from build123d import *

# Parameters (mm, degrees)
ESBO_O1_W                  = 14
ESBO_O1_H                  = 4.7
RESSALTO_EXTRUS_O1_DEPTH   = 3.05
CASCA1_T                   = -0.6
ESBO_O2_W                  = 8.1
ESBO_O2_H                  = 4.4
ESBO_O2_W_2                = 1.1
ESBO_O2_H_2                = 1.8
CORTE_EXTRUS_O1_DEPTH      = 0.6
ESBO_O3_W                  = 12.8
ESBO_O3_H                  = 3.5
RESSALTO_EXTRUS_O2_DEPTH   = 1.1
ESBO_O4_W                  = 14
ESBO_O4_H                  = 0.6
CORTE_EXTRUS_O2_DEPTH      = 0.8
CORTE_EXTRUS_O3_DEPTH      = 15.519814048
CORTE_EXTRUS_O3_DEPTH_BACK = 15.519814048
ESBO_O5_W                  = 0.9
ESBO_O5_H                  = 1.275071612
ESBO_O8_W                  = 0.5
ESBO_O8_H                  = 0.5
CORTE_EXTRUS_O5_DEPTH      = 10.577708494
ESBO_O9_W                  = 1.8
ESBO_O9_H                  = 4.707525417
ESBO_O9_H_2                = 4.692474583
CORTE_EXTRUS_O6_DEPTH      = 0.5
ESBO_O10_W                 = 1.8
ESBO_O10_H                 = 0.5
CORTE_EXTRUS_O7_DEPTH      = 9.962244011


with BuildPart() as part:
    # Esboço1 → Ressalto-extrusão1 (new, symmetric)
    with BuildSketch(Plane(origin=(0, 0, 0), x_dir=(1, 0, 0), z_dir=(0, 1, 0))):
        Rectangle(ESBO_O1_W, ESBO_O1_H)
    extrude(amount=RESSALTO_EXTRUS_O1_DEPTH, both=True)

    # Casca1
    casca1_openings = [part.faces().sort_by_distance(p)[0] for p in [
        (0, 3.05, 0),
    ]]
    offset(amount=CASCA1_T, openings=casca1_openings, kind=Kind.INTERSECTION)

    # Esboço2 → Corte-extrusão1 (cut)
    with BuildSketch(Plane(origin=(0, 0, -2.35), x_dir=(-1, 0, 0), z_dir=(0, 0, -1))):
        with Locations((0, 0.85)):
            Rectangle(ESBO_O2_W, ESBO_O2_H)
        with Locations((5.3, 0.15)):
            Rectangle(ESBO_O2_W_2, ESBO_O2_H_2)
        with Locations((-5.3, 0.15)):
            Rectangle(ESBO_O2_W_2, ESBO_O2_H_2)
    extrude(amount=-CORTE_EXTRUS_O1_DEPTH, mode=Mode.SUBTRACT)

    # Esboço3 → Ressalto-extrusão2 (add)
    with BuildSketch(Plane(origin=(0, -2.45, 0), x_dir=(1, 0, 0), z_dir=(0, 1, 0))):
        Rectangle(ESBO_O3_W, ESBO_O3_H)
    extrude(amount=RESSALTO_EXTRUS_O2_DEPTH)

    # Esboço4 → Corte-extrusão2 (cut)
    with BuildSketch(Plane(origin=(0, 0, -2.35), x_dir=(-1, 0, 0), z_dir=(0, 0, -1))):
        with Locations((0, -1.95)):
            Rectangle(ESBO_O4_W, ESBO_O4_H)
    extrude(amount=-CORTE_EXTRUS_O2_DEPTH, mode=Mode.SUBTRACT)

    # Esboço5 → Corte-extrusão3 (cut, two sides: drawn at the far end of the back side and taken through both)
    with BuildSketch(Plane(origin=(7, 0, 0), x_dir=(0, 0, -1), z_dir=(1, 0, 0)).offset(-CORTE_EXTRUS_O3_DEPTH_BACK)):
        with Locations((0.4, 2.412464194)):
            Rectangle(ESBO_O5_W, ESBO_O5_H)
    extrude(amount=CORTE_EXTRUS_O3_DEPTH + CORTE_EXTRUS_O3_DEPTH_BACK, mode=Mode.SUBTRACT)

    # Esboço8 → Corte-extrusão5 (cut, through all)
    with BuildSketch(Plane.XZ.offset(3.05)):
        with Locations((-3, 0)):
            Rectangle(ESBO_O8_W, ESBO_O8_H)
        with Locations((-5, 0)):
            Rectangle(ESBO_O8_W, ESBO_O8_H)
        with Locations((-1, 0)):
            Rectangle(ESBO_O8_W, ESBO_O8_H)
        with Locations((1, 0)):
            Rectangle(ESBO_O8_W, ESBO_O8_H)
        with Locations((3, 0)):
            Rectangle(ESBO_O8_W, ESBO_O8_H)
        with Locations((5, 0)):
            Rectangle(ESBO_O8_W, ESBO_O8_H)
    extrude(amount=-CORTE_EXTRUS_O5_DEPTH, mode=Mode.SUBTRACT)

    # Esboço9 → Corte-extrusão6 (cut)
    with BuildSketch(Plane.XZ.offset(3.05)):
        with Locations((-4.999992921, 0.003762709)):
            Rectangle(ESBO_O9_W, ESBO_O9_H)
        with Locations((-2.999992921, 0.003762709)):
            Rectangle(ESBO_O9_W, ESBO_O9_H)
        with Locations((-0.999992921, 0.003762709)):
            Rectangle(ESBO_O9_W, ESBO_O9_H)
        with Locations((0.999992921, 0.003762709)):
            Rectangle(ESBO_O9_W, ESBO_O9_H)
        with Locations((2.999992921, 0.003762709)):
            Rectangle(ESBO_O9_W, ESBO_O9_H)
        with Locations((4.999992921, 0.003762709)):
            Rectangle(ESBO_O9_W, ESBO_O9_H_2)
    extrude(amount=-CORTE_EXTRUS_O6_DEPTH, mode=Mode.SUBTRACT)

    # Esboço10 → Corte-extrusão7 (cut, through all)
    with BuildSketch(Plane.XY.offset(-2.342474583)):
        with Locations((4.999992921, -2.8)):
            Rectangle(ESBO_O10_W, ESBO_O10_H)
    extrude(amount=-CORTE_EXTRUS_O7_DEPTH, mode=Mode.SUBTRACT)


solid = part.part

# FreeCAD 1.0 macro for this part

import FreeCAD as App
import Part
import Sketcher


def faces_at(feature, points):
    """Names of the faces that lie closest to the given points."""
    faces = feature.Shape.Faces
    near = lambda p: min(range(len(faces)), key=lambda i: faces[i].distToShape(Part.Vertex(*p))[0])
    return sorted({f"Face{near(p) + 1}" for p in points})

doc = App.newDocument("Part")
body = doc.addObject("PartDesign::Body", "Body")

# Sketch on XZ plane
sketch1 = body.newObject("Sketcher::SketchObject", "Sketch")
sketch1.AttachmentSupport = (doc.getObject("XZ_Plane"), [""])
sketch1.MapMode = "FlatFace"
sketch1.addGeometry(Part.LineSegment(App.Vector(-7, -2.4, 0), App.Vector(-7, 2.4, 0)), False)
sketch1.addGeometry(Part.LineSegment(App.Vector(-7, 2.4, 0), App.Vector(7, 2.4, 0)), False)
sketch1.addGeometry(Part.LineSegment(App.Vector(7, 2.4, 0), App.Vector(7, -2.4, 0)), False)
sketch1.addGeometry(Part.LineSegment(App.Vector(7, -2.4, 0), App.Vector(-7, -2.4, 0)), False)
sketch1.addConstraint(Sketcher.Constraint("Coincident", 0, 2, 1, 1))
sketch1.addConstraint(Sketcher.Constraint("Coincident", 1, 2, 2, 1))
sketch1.addConstraint(Sketcher.Constraint("Coincident", 2, 2, 3, 1))
sketch1.addConstraint(Sketcher.Constraint("Coincident", 3, 2, 0, 1))
sketch1.addConstraint(Sketcher.Constraint("Vertical", 0))
sketch1.addConstraint(Sketcher.Constraint("Horizontal", 1))
sketch1.addConstraint(Sketcher.Constraint("Vertical", 2))
sketch1.addConstraint(Sketcher.Constraint("Horizontal", 3))
sketch1.addConstraint(Sketcher.Constraint("Symmetric", 0, 2, 2, 2, -1, 1))
sketch1.addConstraint(Sketcher.Constraint("DistanceX", 1, 1, 1, 2, 14.0))
sketch1.addConstraint(Sketcher.Constraint("DistanceY", 0, 1, 0, 2, 4.7))
pad1 = body.newObject("PartDesign::Pad", "Pad")
pad1.Profile = sketch1
pad1.Length = 6.1
pad1.Midplane = True
doc.recompute()

thickness = body.newObject("PartDesign::Thickness", "Thickness")
thickness.Base = (pad1, faces_at(pad1, [(0, 3.05, 0)]))
thickness.Value = 0.6
thickness.Reversed = True
thickness.Join = "Intersection"

# Sketch on XY plane
sketch2 = body.newObject("Sketcher::SketchObject", "Sketch001")
sketch2.AttachmentSupport = (doc.getObject("XY_Plane"), [""])
sketch2.MapMode = "FlatFace"
sketch2.AttachmentOffset = App.Placement(App.Vector(0, 0, -2.35), App.Rotation())
sketch2.addGeometry(Part.LineSegment(App.Vector(4, 3, 0), App.Vector(4, -1.4, 0)), False)
sketch2.addGeometry(Part.LineSegment(App.Vector(4, -1.4, 0), App.Vector(-4, -1.4, 0)), False)
sketch2.addGeometry(Part.LineSegment(App.Vector(-4, -1.4, 0), App.Vector(-4, 3, 0)), False)
sketch2.addGeometry(Part.LineSegment(App.Vector(-4, 3, 0), App.Vector(4, 3, 0)), False)
sketch2.addGeometry(Part.LineSegment(App.Vector(-4.8, 1.1, 0), App.Vector(-4.8, -0.8, 0)), False)
sketch2.addGeometry(Part.LineSegment(App.Vector(-4.8, -0.8, 0), App.Vector(-5.8, -0.8, 0)), False)
sketch2.addGeometry(Part.LineSegment(App.Vector(-5.8, -0.8, 0), App.Vector(-5.8, 1.1, 0)), False)
sketch2.addGeometry(Part.LineSegment(App.Vector(-5.8, 1.1, 0), App.Vector(-4.8, 1.1, 0)), False)
sketch2.addGeometry(Part.LineSegment(App.Vector(5.8, 1.1, 0), App.Vector(5.8, -0.8, 0)), False)
sketch2.addGeometry(Part.LineSegment(App.Vector(5.8, -0.8, 0), App.Vector(4.8, -0.8, 0)), False)
sketch2.addGeometry(Part.LineSegment(App.Vector(4.8, -0.8, 0), App.Vector(4.8, 1.1, 0)), False)
sketch2.addGeometry(Part.LineSegment(App.Vector(4.8, 1.1, 0), App.Vector(5.8, 1.1, 0)), False)
sketch2.addConstraint(Sketcher.Constraint("Coincident", 0, 2, 1, 1))
sketch2.addConstraint(Sketcher.Constraint("Coincident", 1, 2, 2, 1))
sketch2.addConstraint(Sketcher.Constraint("Coincident", 2, 2, 3, 1))
sketch2.addConstraint(Sketcher.Constraint("Coincident", 3, 2, 0, 1))
sketch2.addConstraint(Sketcher.Constraint("Coincident", 4, 2, 5, 1))
sketch2.addConstraint(Sketcher.Constraint("Coincident", 5, 2, 6, 1))
sketch2.addConstraint(Sketcher.Constraint("Coincident", 6, 2, 7, 1))
sketch2.addConstraint(Sketcher.Constraint("Coincident", 7, 2, 4, 1))
sketch2.addConstraint(Sketcher.Constraint("Coincident", 8, 2, 9, 1))
sketch2.addConstraint(Sketcher.Constraint("Coincident", 9, 2, 10, 1))
sketch2.addConstraint(Sketcher.Constraint("Coincident", 10, 2, 11, 1))
sketch2.addConstraint(Sketcher.Constraint("Coincident", 11, 2, 8, 1))
sketch2.addConstraint(Sketcher.Constraint("Vertical", 0))
sketch2.addConstraint(Sketcher.Constraint("Horizontal", 1))
sketch2.addConstraint(Sketcher.Constraint("Vertical", 2))
sketch2.addConstraint(Sketcher.Constraint("Horizontal", 3))
sketch2.addConstraint(Sketcher.Constraint("Vertical", 4))
sketch2.addConstraint(Sketcher.Constraint("Horizontal", 5))
sketch2.addConstraint(Sketcher.Constraint("Vertical", 6))
sketch2.addConstraint(Sketcher.Constraint("Horizontal", 7))
sketch2.addConstraint(Sketcher.Constraint("Vertical", 8))
sketch2.addConstraint(Sketcher.Constraint("Horizontal", 9))
sketch2.addConstraint(Sketcher.Constraint("Vertical", 10))
sketch2.addConstraint(Sketcher.Constraint("Horizontal", 11))
sketch2.addConstraint(Sketcher.Constraint("Symmetric", 5, 2, 8, 2, -2))
sketch2.addConstraint(Sketcher.Constraint("Symmetric", 7, 2, 10, 2, -2))
sketch2.addConstraint(Sketcher.Constraint("DistanceX", 1, 2, 1, 1, 8.1))
sketch2.addConstraint(Sketcher.Constraint("DistanceX", 5, 2, 5, 1, 1.1))
sketch2.addConstraint(Sketcher.Constraint("DistanceY", 0, 2, 0, 1, 4.4))
sketch2.addConstraint(Sketcher.Constraint("DistanceY", 4, 2, 4, 1, 1.8))
sketch2.addConstraint(Sketcher.Constraint("DistanceY", 6, 2, 2, 2, 2.0))
sketch2.addConstraint(Sketcher.Constraint("DistanceX", 4, 2, 1, 2, 0.7))
sketch2.addConstraint(Sketcher.Constraint("DistanceX", 0, 2, 8, 2, 1.8))
sketch2.addConstraint(Sketcher.Constraint("DistanceY", 0, 2, -1, 1, 1.35))
pocket1 = body.newObject("PartDesign::Pocket", "Pocket")
pocket1.Profile = sketch2
pocket1.Length = 0.6
pocket1.Reversed = True

# Sketch on XZ plane
sketch3 = body.newObject("Sketcher::SketchObject", "Sketch002")
sketch3.AttachmentSupport = (doc.getObject("XZ_Plane"), [""])
sketch3.MapMode = "FlatFace"
sketch3.AttachmentOffset = App.Placement(App.Vector(0, 0, 2.45), App.Rotation())
sketch3.addGeometry(Part.LineSegment(App.Vector(-6.4, -1.8, 0), App.Vector(-6.4, 1.8, 0)), False)
sketch3.addGeometry(Part.LineSegment(App.Vector(-6.4, 1.8, 0), App.Vector(6.4, 1.8, 0)), False)
sketch3.addGeometry(Part.LineSegment(App.Vector(6.4, 1.8, 0), App.Vector(6.4, -1.8, 0)), False)
sketch3.addGeometry(Part.LineSegment(App.Vector(6.4, -1.8, 0), App.Vector(-6.4, -1.8, 0)), False)
sketch3.addConstraint(Sketcher.Constraint("Coincident", 0, 2, 1, 1))
sketch3.addConstraint(Sketcher.Constraint("Coincident", 1, 2, 2, 1))
sketch3.addConstraint(Sketcher.Constraint("Coincident", 2, 2, 3, 1))
sketch3.addConstraint(Sketcher.Constraint("Coincident", 3, 2, 0, 1))
sketch3.addConstraint(Sketcher.Constraint("Vertical", 0))
sketch3.addConstraint(Sketcher.Constraint("Horizontal", 1))
sketch3.addConstraint(Sketcher.Constraint("Vertical", 2))
sketch3.addConstraint(Sketcher.Constraint("Horizontal", 3))
sketch3.addConstraint(Sketcher.Constraint("Symmetric", 0, 2, 2, 2, -1, 1))
sketch3.addConstraint(Sketcher.Constraint("DistanceX", 1, 1, 1, 2, 12.8))
sketch3.addConstraint(Sketcher.Constraint("DistanceY", 0, 1, 0, 2, 3.5))
pad2 = body.newObject("PartDesign::Pad", "Pad001")
pad2.Profile = sketch3
pad2.Length = 1.1
pad2.Reversed = True

# Sketch on XY plane
sketch4 = body.newObject("Sketcher::SketchObject", "Sketch003")
sketch4.AttachmentSupport = (doc.getObject("XY_Plane"), [""])
sketch4.MapMode = "FlatFace"
sketch4.AttachmentOffset = App.Placement(App.Vector(0, 0, -2.35), App.Rotation())
sketch4.addGeometry(Part.LineSegment(App.Vector(7, -1.6, 0), App.Vector(7, -2.2, 0)), False)
sketch4.addGeometry(Part.LineSegment(App.Vector(7, -2.2, 0), App.Vector(-7, -2.2, 0)), False)
sketch4.addGeometry(Part.LineSegment(App.Vector(-7, -2.2, 0), App.Vector(-7, -1.6, 0)), False)
sketch4.addGeometry(Part.LineSegment(App.Vector(-7, -1.6, 0), App.Vector(7, -1.6, 0)), False)
sketch4.addConstraint(Sketcher.Constraint("Coincident", 0, 2, 1, 1))
sketch4.addConstraint(Sketcher.Constraint("Coincident", 1, 2, 2, 1))
sketch4.addConstraint(Sketcher.Constraint("Coincident", 2, 2, 3, 1))
sketch4.addConstraint(Sketcher.Constraint("Coincident", 3, 2, 0, 1))
sketch4.addConstraint(Sketcher.Constraint("Vertical", 0))
sketch4.addConstraint(Sketcher.Constraint("Horizontal", 1))
sketch4.addConstraint(Sketcher.Constraint("Vertical", 2))
sketch4.addConstraint(Sketcher.Constraint("Horizontal", 3))
sketch4.addConstraint(Sketcher.Constraint("DistanceX", 1, 2, 1, 1, 14.0))
sketch4.addConstraint(Sketcher.Constraint("DistanceY", 0, 2, 0, 1, 0.6))
sketch4.addConstraint(Sketcher.Constraint("DistanceX", -1, 1, 0, 2, 7.0))
sketch4.addConstraint(Sketcher.Constraint("DistanceY", 0, 2, -1, 1, 2.25))
pocket2 = body.newObject("PartDesign::Pocket", "Pocket001")
pocket2.Profile = sketch4
pocket2.Length = 0.8
pocket2.Reversed = True

# Sketch on YZ plane
sketch5 = body.newObject("Sketcher::SketchObject", "Sketch004")
sketch5.AttachmentSupport = (doc.getObject("YZ_Plane"), [""])
sketch5.MapMode = "FlatFace"
sketch5.AttachmentOffset = App.Placement(App.Vector(0, 0, 7), App.Rotation())
sketch5.addGeometry(Part.LineSegment(App.Vector(3, 0.1, 0), App.Vector(1.8, 0.1, 0)), False)
sketch5.addGeometry(Part.LineSegment(App.Vector(1.8, 0.1, 0), App.Vector(1.8, -0.8, 0)), False)
sketch5.addGeometry(Part.LineSegment(App.Vector(1.8, -0.8, 0), App.Vector(3, -0.8, 0)), False)
sketch5.addGeometry(Part.LineSegment(App.Vector(3, -0.8, 0), App.Vector(3, 0.1, 0)), False)
sketch5.addConstraint(Sketcher.Constraint("Coincident", 0, 2, 1, 1))
sketch5.addConstraint(Sketcher.Constraint("Coincident", 1, 2, 2, 1))
sketch5.addConstraint(Sketcher.Constraint("Coincident", 2, 2, 3, 1))
sketch5.addConstraint(Sketcher.Constraint("Coincident", 3, 2, 0, 1))
sketch5.addConstraint(Sketcher.Constraint("Horizontal", 0))
sketch5.addConstraint(Sketcher.Constraint("Vertical", 1))
sketch5.addConstraint(Sketcher.Constraint("Horizontal", 2))
sketch5.addConstraint(Sketcher.Constraint("Vertical", 3))
sketch5.addConstraint(Sketcher.Constraint("DistanceY", 1, 2, 1, 1, 0.9))
sketch5.addConstraint(Sketcher.Constraint("DistanceY", -1, 1, 0, 2, 0.05))
sketch5.addConstraint(Sketcher.Constraint("DistanceX", -1, 1, 2, 2, 3.05))
sketch5.addConstraint(Sketcher.Constraint("DistanceX", 0, 2, 0, 1, 1.275072))
pocket3 = body.newObject("PartDesign::Pocket", "Pocket002")
pocket3.Profile = sketch5
pocket3.Type = "ThroughAll"
pocket3.Midplane = True

# Sketch on XZ plane
sketch6 = body.newObject("Sketcher::SketchObject", "Sketch005")
sketch6.AttachmentSupport = (doc.getObject("XZ_Plane"), [""])
sketch6.MapMode = "FlatFace"
sketch6.AttachmentOffset = App.Placement(App.Vector(0, 0, 3.05), App.Rotation())
sketch6.addGeometry(Part.LineSegment(App.Vector(-3.2, 0.2, 0), App.Vector(-3.2, -0.2, 0)), False)
sketch6.addGeometry(Part.LineSegment(App.Vector(-3.2, -0.2, 0), App.Vector(-2.8, -0.2, 0)), False)
sketch6.addGeometry(Part.LineSegment(App.Vector(-2.8, -0.2, 0), App.Vector(-2.8, 0.2, 0)), False)
sketch6.addGeometry(Part.LineSegment(App.Vector(-2.8, 0.2, 0), App.Vector(-3.2, 0.2, 0)), False)
sketch6.addGeometry(Part.LineSegment(App.Vector(-5.2, 0.2, 0), App.Vector(-5.2, -0.2, 0)), False)
sketch6.addGeometry(Part.LineSegment(App.Vector(-5.2, -0.2, 0), App.Vector(-4.8, -0.2, 0)), False)
sketch6.addGeometry(Part.LineSegment(App.Vector(-4.8, -0.2, 0), App.Vector(-4.8, 0.2, 0)), False)
sketch6.addGeometry(Part.LineSegment(App.Vector(-4.8, 0.2, 0), App.Vector(-5.2, 0.2, 0)), False)
sketch6.addGeometry(Part.LineSegment(App.Vector(-1.2, 0.2, 0), App.Vector(-1.2, -0.2, 0)), False)
sketch6.addGeometry(Part.LineSegment(App.Vector(-1.2, -0.2, 0), App.Vector(-0.8, -0.2, 0)), False)
sketch6.addGeometry(Part.LineSegment(App.Vector(-0.8, -0.2, 0), App.Vector(-0.8, 0.2, 0)), False)
sketch6.addGeometry(Part.LineSegment(App.Vector(-0.8, 0.2, 0), App.Vector(-1.2, 0.2, 0)), False)
sketch6.addGeometry(Part.LineSegment(App.Vector(0.8, 0.2, 0), App.Vector(0.8, -0.2, 0)), False)
sketch6.addGeometry(Part.LineSegment(App.Vector(0.8, -0.2, 0), App.Vector(1.2, -0.2, 0)), False)
sketch6.addGeometry(Part.LineSegment(App.Vector(1.2, -0.2, 0), App.Vector(1.2, 0.2, 0)), False)
sketch6.addGeometry(Part.LineSegment(App.Vector(1.2, 0.2, 0), App.Vector(0.8, 0.2, 0)), False)
sketch6.addGeometry(Part.LineSegment(App.Vector(2.8, 0.2, 0), App.Vector(2.8, -0.2, 0)), False)
sketch6.addGeometry(Part.LineSegment(App.Vector(2.8, -0.2, 0), App.Vector(3.2, -0.2, 0)), False)
sketch6.addGeometry(Part.LineSegment(App.Vector(3.2, -0.2, 0), App.Vector(3.2, 0.2, 0)), False)
sketch6.addGeometry(Part.LineSegment(App.Vector(3.2, 0.2, 0), App.Vector(2.8, 0.2, 0)), False)
sketch6.addGeometry(Part.LineSegment(App.Vector(4.8, 0.2, 0), App.Vector(4.8, -0.2, 0)), False)
sketch6.addGeometry(Part.LineSegment(App.Vector(4.8, -0.2, 0), App.Vector(5.2, -0.2, 0)), False)
sketch6.addGeometry(Part.LineSegment(App.Vector(5.2, -0.2, 0), App.Vector(5.2, 0.2, 0)), False)
sketch6.addGeometry(Part.LineSegment(App.Vector(5.2, 0.2, 0), App.Vector(4.8, 0.2, 0)), False)
sketch6.addConstraint(Sketcher.Constraint("Coincident", 0, 2, 1, 1))
sketch6.addConstraint(Sketcher.Constraint("Coincident", 1, 2, 2, 1))
sketch6.addConstraint(Sketcher.Constraint("Coincident", 2, 2, 3, 1))
sketch6.addConstraint(Sketcher.Constraint("Coincident", 3, 2, 0, 1))
sketch6.addConstraint(Sketcher.Constraint("Coincident", 4, 2, 5, 1))
sketch6.addConstraint(Sketcher.Constraint("Coincident", 5, 2, 6, 1))
sketch6.addConstraint(Sketcher.Constraint("Coincident", 6, 2, 7, 1))
sketch6.addConstraint(Sketcher.Constraint("Coincident", 7, 2, 4, 1))
sketch6.addConstraint(Sketcher.Constraint("Coincident", 8, 2, 9, 1))
sketch6.addConstraint(Sketcher.Constraint("Coincident", 9, 2, 10, 1))
sketch6.addConstraint(Sketcher.Constraint("Coincident", 10, 2, 11, 1))
sketch6.addConstraint(Sketcher.Constraint("Coincident", 11, 2, 8, 1))
sketch6.addConstraint(Sketcher.Constraint("Coincident", 12, 2, 13, 1))
sketch6.addConstraint(Sketcher.Constraint("Coincident", 13, 2, 14, 1))
sketch6.addConstraint(Sketcher.Constraint("Coincident", 14, 2, 15, 1))
sketch6.addConstraint(Sketcher.Constraint("Coincident", 15, 2, 12, 1))
sketch6.addConstraint(Sketcher.Constraint("Coincident", 16, 2, 17, 1))
sketch6.addConstraint(Sketcher.Constraint("Coincident", 17, 2, 18, 1))
sketch6.addConstraint(Sketcher.Constraint("Coincident", 18, 2, 19, 1))
sketch6.addConstraint(Sketcher.Constraint("Coincident", 19, 2, 16, 1))
sketch6.addConstraint(Sketcher.Constraint("Coincident", 20, 2, 21, 1))
sketch6.addConstraint(Sketcher.Constraint("Coincident", 21, 2, 22, 1))
sketch6.addConstraint(Sketcher.Constraint("Coincident", 22, 2, 23, 1))
sketch6.addConstraint(Sketcher.Constraint("Coincident", 23, 2, 20, 1))
sketch6.addConstraint(Sketcher.Constraint("Vertical", 0))
sketch6.addConstraint(Sketcher.Constraint("Horizontal", 1))
sketch6.addConstraint(Sketcher.Constraint("Vertical", 2))
sketch6.addConstraint(Sketcher.Constraint("Horizontal", 3))
sketch6.addConstraint(Sketcher.Constraint("Vertical", 4))
sketch6.addConstraint(Sketcher.Constraint("Horizontal", 5))
sketch6.addConstraint(Sketcher.Constraint("Vertical", 6))
sketch6.addConstraint(Sketcher.Constraint("Horizontal", 7))
sketch6.addConstraint(Sketcher.Constraint("Vertical", 8))
sketch6.addConstraint(Sketcher.Constraint("Horizontal", 9))
sketch6.addConstraint(Sketcher.Constraint("Vertical", 10))
sketch6.addConstraint(Sketcher.Constraint("Horizontal", 11))
sketch6.addConstraint(Sketcher.Constraint("Vertical", 12))
sketch6.addConstraint(Sketcher.Constraint("Horizontal", 13))
sketch6.addConstraint(Sketcher.Constraint("Vertical", 14))
sketch6.addConstraint(Sketcher.Constraint("Horizontal", 15))
sketch6.addConstraint(Sketcher.Constraint("Vertical", 16))
sketch6.addConstraint(Sketcher.Constraint("Horizontal", 17))
sketch6.addConstraint(Sketcher.Constraint("Vertical", 18))
sketch6.addConstraint(Sketcher.Constraint("Horizontal", 19))
sketch6.addConstraint(Sketcher.Constraint("Vertical", 20))
sketch6.addConstraint(Sketcher.Constraint("Horizontal", 21))
sketch6.addConstraint(Sketcher.Constraint("Vertical", 22))
sketch6.addConstraint(Sketcher.Constraint("Horizontal", 23))
sketch6.addConstraint(Sketcher.Constraint("Symmetric", 10, 2, 12, 2, -1, 1))
sketch6.addConstraint(Sketcher.Constraint("Symmetric", 8, 2, 14, 2, -1, 1))
sketch6.addConstraint(Sketcher.Constraint("Symmetric", 2, 2, 16, 2, -1, 1))
sketch6.addConstraint(Sketcher.Constraint("Symmetric", 0, 2, 18, 2, -1, 1))
sketch6.addConstraint(Sketcher.Constraint("Symmetric", 6, 2, 20, 2, -1, 1))
sketch6.addConstraint(Sketcher.Constraint("Symmetric", 4, 2, 22, 2, -1, 1))
sketch6.addConstraint(Sketcher.Constraint("Horizontal", 1, 2, 4, 2))
sketch6.addConstraint(Sketcher.Constraint("Horizontal", 3, 2, 6, 2))
sketch6.addConstraint(Sketcher.Constraint("Horizontal", 5, 2, 8, 2))
sketch6.addConstraint(Sketcher.Constraint("Horizontal", 7, 2, 10, 2))
sketch6.addConstraint(Sketcher.Constraint("Horizontal", 9, 2, 12, 2))
sketch6.addConstraint(Sketcher.Constraint("Equal", 3, 5))
sketch6.addConstraint(Sketcher.Constraint("Equal", 7, 9))
sketch6.addConstraint(Sketcher.Constraint("Equal", 23, 0))
sketch6.addConstraint(Sketcher.Constraint("DistanceX", 1, 1, 1, 2, 0.5))
sketch6.addConstraint(Sketcher.Constraint("DistanceX", 4, 2, 0, 2, 2.0))
sketch6.addConstraint(Sketcher.Constraint("DistanceX", 0, 2, 8, 2, 2.0))
sketch6.addConstraint(Sketcher.Constraint("DistanceX", 8, 2, 12, 2, 2.0))
pocket4 = body.newObject("PartDesign::Pocket", "Pocket003")
pocket4.Profile = sketch6
pocket4.Type = "ThroughAll"

# Sketch on XZ plane
sketch7 = body.newObject("Sketcher::SketchObject", "Sketch006")
sketch7.AttachmentSupport = (doc.getObject("XZ_Plane"), [""])
sketch7.MapMode = "FlatFace"
sketch7.AttachmentOffset = App.Placement(App.Vector(0, 0, 3.05), App.Rotation())
sketch7.addGeometry(Part.LineSegment(App.Vector(-5.9, 2.4, 0), App.Vector(-5.9, -2.4, 0)), False)
sketch7.addGeometry(Part.LineSegment(App.Vector(-5.9, -2.4, 0), App.Vector(-4.1, -2.4, 0)), False)
sketch7.addGeometry(Part.LineSegment(App.Vector(-4.1, -2.4, 0), App.Vector(-4.1, 2.4, 0)), False)
sketch7.addGeometry(Part.LineSegment(App.Vector(-4.1, 2.4, 0), App.Vector(-5.9, 2.4, 0)), False)
sketch7.addGeometry(Part.LineSegment(App.Vector(-3.9, 2.4, 0), App.Vector(-3.9, -2.4, 0)), False)
sketch7.addGeometry(Part.LineSegment(App.Vector(-3.9, -2.4, 0), App.Vector(-2.1, -2.4, 0)), False)
sketch7.addGeometry(Part.LineSegment(App.Vector(-2.1, -2.4, 0), App.Vector(-2.1, 2.4, 0)), False)
sketch7.addGeometry(Part.LineSegment(App.Vector(-2.1, 2.4, 0), App.Vector(-3.9, 2.4, 0)), False)
sketch7.addGeometry(Part.LineSegment(App.Vector(-1.9, 2.4, 0), App.Vector(-1.9, -2.4, 0)), False)
sketch7.addGeometry(Part.LineSegment(App.Vector(-1.9, -2.4, 0), App.Vector(-0.1, -2.4, 0)), False)
sketch7.addGeometry(Part.LineSegment(App.Vector(-0.1, -2.4, 0), App.Vector(-0.1, 2.4, 0)), False)
sketch7.addGeometry(Part.LineSegment(App.Vector(-0.1, 2.4, 0), App.Vector(-1.9, 2.4, 0)), False)
sketch7.addGeometry(Part.LineSegment(App.Vector(0.1, 2.4, 0), App.Vector(0.1, -2.4, 0)), False)
sketch7.addGeometry(Part.LineSegment(App.Vector(0.1, -2.4, 0), App.Vector(1.9, -2.4, 0)), False)
sketch7.addGeometry(Part.LineSegment(App.Vector(1.9, -2.4, 0), App.Vector(1.9, 2.4, 0)), False)
sketch7.addGeometry(Part.LineSegment(App.Vector(1.9, 2.4, 0), App.Vector(0.1, 2.4, 0)), False)
sketch7.addGeometry(Part.LineSegment(App.Vector(2.1, 2.4, 0), App.Vector(2.1, -2.4, 0)), False)
sketch7.addGeometry(Part.LineSegment(App.Vector(2.1, -2.4, 0), App.Vector(3.9, -2.4, 0)), False)
sketch7.addGeometry(Part.LineSegment(App.Vector(3.9, -2.4, 0), App.Vector(3.9, 2.4, 0)), False)
sketch7.addGeometry(Part.LineSegment(App.Vector(3.9, 2.4, 0), App.Vector(2.1, 2.4, 0)), False)
sketch7.addGeometry(Part.LineSegment(App.Vector(4.1, 2.4, 0), App.Vector(4.1, -2.3, 0)), False)
sketch7.addGeometry(Part.LineSegment(App.Vector(4.1, -2.3, 0), App.Vector(5.9, -2.3, 0)), False)
sketch7.addGeometry(Part.LineSegment(App.Vector(5.9, -2.3, 0), App.Vector(5.9, 2.4, 0)), False)
sketch7.addGeometry(Part.LineSegment(App.Vector(5.9, 2.4, 0), App.Vector(4.1, 2.4, 0)), False)
sketch7.addConstraint(Sketcher.Constraint("Coincident", 0, 2, 1, 1))
sketch7.addConstraint(Sketcher.Constraint("Coincident", 1, 2, 2, 1))
sketch7.addConstraint(Sketcher.Constraint("Coincident", 2, 2, 3, 1))
sketch7.addConstraint(Sketcher.Constraint("Coincident", 3, 2, 0, 1))
sketch7.addConstraint(Sketcher.Constraint("Coincident", 4, 2, 5, 1))
sketch7.addConstraint(Sketcher.Constraint("Coincident", 5, 2, 6, 1))
sketch7.addConstraint(Sketcher.Constraint("Coincident", 6, 2, 7, 1))
sketch7.addConstraint(Sketcher.Constraint("Coincident", 7, 2, 4, 1))
sketch7.addConstraint(Sketcher.Constraint("Coincident", 8, 2, 9, 1))
sketch7.addConstraint(Sketcher.Constraint("Coincident", 9, 2, 10, 1))
sketch7.addConstraint(Sketcher.Constraint("Coincident", 10, 2, 11, 1))
sketch7.addConstraint(Sketcher.Constraint("Coincident", 11, 2, 8, 1))
sketch7.addConstraint(Sketcher.Constraint("Coincident", 12, 2, 13, 1))
sketch7.addConstraint(Sketcher.Constraint("Coincident", 13, 2, 14, 1))
sketch7.addConstraint(Sketcher.Constraint("Coincident", 14, 2, 15, 1))
sketch7.addConstraint(Sketcher.Constraint("Coincident", 15, 2, 12, 1))
sketch7.addConstraint(Sketcher.Constraint("Coincident", 16, 2, 17, 1))
sketch7.addConstraint(Sketcher.Constraint("Coincident", 17, 2, 18, 1))
sketch7.addConstraint(Sketcher.Constraint("Coincident", 18, 2, 19, 1))
sketch7.addConstraint(Sketcher.Constraint("Coincident", 19, 2, 16, 1))
sketch7.addConstraint(Sketcher.Constraint("Coincident", 20, 2, 21, 1))
sketch7.addConstraint(Sketcher.Constraint("Coincident", 21, 2, 22, 1))
sketch7.addConstraint(Sketcher.Constraint("Coincident", 22, 2, 23, 1))
sketch7.addConstraint(Sketcher.Constraint("Coincident", 23, 2, 20, 1))
sketch7.addConstraint(Sketcher.Constraint("Vertical", 0))
sketch7.addConstraint(Sketcher.Constraint("Horizontal", 1))
sketch7.addConstraint(Sketcher.Constraint("Vertical", 2))
sketch7.addConstraint(Sketcher.Constraint("Horizontal", 3))
sketch7.addConstraint(Sketcher.Constraint("Vertical", 4))
sketch7.addConstraint(Sketcher.Constraint("Horizontal", 5))
sketch7.addConstraint(Sketcher.Constraint("Vertical", 6))
sketch7.addConstraint(Sketcher.Constraint("Horizontal", 7))
sketch7.addConstraint(Sketcher.Constraint("Vertical", 8))
sketch7.addConstraint(Sketcher.Constraint("Horizontal", 9))
sketch7.addConstraint(Sketcher.Constraint("Vertical", 10))
sketch7.addConstraint(Sketcher.Constraint("Horizontal", 11))
sketch7.addConstraint(Sketcher.Constraint("Vertical", 12))
sketch7.addConstraint(Sketcher.Constraint("Horizontal", 13))
sketch7.addConstraint(Sketcher.Constraint("Vertical", 14))
sketch7.addConstraint(Sketcher.Constraint("Horizontal", 15))
sketch7.addConstraint(Sketcher.Constraint("Vertical", 16))
sketch7.addConstraint(Sketcher.Constraint("Horizontal", 17))
sketch7.addConstraint(Sketcher.Constraint("Vertical", 18))
sketch7.addConstraint(Sketcher.Constraint("Horizontal", 19))
sketch7.addConstraint(Sketcher.Constraint("Vertical", 20))
sketch7.addConstraint(Sketcher.Constraint("Horizontal", 21))
sketch7.addConstraint(Sketcher.Constraint("Vertical", 22))
sketch7.addConstraint(Sketcher.Constraint("Horizontal", 23))
sketch7.addConstraint(Sketcher.Constraint("Symmetric", 0, 2, 22, 2, -1, 1))
sketch7.addConstraint(Sketcher.Constraint("Symmetric", 9, 2, 12, 2, -2))
sketch7.addConstraint(Sketcher.Constraint("Symmetric", 11, 2, 14, 2, -2))
sketch7.addConstraint(Sketcher.Constraint("Symmetric", 5, 2, 16, 2, -2))
sketch7.addConstraint(Sketcher.Constraint("Symmetric", 7, 2, 18, 2, -2))
sketch7.addConstraint(Sketcher.Constraint("Horizontal", 1, 2, 4, 2))
sketch7.addConstraint(Sketcher.Constraint("Horizontal", 3, 2, 6, 2))
sketch7.addConstraint(Sketcher.Constraint("Horizontal", 5, 2, 8, 2))
sketch7.addConstraint(Sketcher.Constraint("Horizontal", 7, 2, 10, 2))
sketch7.addConstraint(Sketcher.Constraint("Equal", 3, 5))
sketch7.addConstraint(Sketcher.Constraint("Equal", 7, 9))
sketch7.addConstraint(Sketcher.Constraint("Equal", 19, 21))
sketch7.addConstraint(Sketcher.Constraint("DistanceX", 1, 1, 1, 2, 1.8))
sketch7.addConstraint(Sketcher.Constraint("DistanceX", 0, 2, 4, 2, 2.0))
sketch7.addConstraint(Sketcher.Constraint("DistanceX", 4, 2, 8, 2, 2.0))
sketch7.addConstraint(Sketcher.Constraint("DistanceY", 21, 2, 18, 2, 4.7))
sketch7.addConstraint(Sketcher.Constraint("DistanceY", 0, 2, -1, 1, 2.35))
sketch7.addConstraint(Sketcher.Constraint("DistanceY", 0, 2, 0, 1, 4.707525))
sketch7.addConstraint(Sketcher.Constraint("DistanceX", 0, 2, -1, 1, 5.899993))
pocket5 = body.newObject("PartDesign::Pocket", "Pocket004")
pocket5.Profile = sketch7
pocket5.Length = 0.5

# Sketch on XY plane
sketch8 = body.newObject("Sketcher::SketchObject", "Sketch007")
sketch8.AttachmentSupport = (doc.getObject("XY_Plane"), [""])
sketch8.MapMode = "FlatFace"
sketch8.AttachmentOffset = App.Placement(App.Vector(0, 0, -2.342475), App.Rotation())
sketch8.addGeometry(Part.LineSegment(App.Vector(4.1, -2.5, 0), App.Vector(4.1, -3, 0)), False)
sketch8.addGeometry(Part.LineSegment(App.Vector(4.1, -3, 0), App.Vector(5.9, -3, 0)), False)
sketch8.addGeometry(Part.LineSegment(App.Vector(5.9, -3, 0), App.Vector(5.9, -2.5, 0)), False)
sketch8.addGeometry(Part.LineSegment(App.Vector(5.9, -2.5, 0), App.Vector(4.1, -2.5, 0)), False)
sketch8.addConstraint(Sketcher.Constraint("Coincident", 0, 2, 1, 1))
sketch8.addConstraint(Sketcher.Constraint("Coincident", 1, 2, 2, 1))
sketch8.addConstraint(Sketcher.Constraint("Coincident", 2, 2, 3, 1))
sketch8.addConstraint(Sketcher.Constraint("Coincident", 3, 2, 0, 1))
sketch8.addConstraint(Sketcher.Constraint("Vertical", 0))
sketch8.addConstraint(Sketcher.Constraint("Horizontal", 1))
sketch8.addConstraint(Sketcher.Constraint("Vertical", 2))
sketch8.addConstraint(Sketcher.Constraint("Horizontal", 3))
sketch8.addConstraint(Sketcher.Constraint("DistanceX", 1, 1, 1, 2, 1.8))
sketch8.addConstraint(Sketcher.Constraint("DistanceY", 0, 2, 0, 1, 0.5))
sketch8.addConstraint(Sketcher.Constraint("DistanceY", 0, 2, -1, 1, 3.05))
sketch8.addConstraint(Sketcher.Constraint("DistanceX", -1, 1, 0, 2, 4.099993))
pocket6 = body.newObject("PartDesign::Pocket", "Pocket005")
pocket6.Profile = sketch8
pocket6.Type = "ThroughAll"

doc.recompute()
